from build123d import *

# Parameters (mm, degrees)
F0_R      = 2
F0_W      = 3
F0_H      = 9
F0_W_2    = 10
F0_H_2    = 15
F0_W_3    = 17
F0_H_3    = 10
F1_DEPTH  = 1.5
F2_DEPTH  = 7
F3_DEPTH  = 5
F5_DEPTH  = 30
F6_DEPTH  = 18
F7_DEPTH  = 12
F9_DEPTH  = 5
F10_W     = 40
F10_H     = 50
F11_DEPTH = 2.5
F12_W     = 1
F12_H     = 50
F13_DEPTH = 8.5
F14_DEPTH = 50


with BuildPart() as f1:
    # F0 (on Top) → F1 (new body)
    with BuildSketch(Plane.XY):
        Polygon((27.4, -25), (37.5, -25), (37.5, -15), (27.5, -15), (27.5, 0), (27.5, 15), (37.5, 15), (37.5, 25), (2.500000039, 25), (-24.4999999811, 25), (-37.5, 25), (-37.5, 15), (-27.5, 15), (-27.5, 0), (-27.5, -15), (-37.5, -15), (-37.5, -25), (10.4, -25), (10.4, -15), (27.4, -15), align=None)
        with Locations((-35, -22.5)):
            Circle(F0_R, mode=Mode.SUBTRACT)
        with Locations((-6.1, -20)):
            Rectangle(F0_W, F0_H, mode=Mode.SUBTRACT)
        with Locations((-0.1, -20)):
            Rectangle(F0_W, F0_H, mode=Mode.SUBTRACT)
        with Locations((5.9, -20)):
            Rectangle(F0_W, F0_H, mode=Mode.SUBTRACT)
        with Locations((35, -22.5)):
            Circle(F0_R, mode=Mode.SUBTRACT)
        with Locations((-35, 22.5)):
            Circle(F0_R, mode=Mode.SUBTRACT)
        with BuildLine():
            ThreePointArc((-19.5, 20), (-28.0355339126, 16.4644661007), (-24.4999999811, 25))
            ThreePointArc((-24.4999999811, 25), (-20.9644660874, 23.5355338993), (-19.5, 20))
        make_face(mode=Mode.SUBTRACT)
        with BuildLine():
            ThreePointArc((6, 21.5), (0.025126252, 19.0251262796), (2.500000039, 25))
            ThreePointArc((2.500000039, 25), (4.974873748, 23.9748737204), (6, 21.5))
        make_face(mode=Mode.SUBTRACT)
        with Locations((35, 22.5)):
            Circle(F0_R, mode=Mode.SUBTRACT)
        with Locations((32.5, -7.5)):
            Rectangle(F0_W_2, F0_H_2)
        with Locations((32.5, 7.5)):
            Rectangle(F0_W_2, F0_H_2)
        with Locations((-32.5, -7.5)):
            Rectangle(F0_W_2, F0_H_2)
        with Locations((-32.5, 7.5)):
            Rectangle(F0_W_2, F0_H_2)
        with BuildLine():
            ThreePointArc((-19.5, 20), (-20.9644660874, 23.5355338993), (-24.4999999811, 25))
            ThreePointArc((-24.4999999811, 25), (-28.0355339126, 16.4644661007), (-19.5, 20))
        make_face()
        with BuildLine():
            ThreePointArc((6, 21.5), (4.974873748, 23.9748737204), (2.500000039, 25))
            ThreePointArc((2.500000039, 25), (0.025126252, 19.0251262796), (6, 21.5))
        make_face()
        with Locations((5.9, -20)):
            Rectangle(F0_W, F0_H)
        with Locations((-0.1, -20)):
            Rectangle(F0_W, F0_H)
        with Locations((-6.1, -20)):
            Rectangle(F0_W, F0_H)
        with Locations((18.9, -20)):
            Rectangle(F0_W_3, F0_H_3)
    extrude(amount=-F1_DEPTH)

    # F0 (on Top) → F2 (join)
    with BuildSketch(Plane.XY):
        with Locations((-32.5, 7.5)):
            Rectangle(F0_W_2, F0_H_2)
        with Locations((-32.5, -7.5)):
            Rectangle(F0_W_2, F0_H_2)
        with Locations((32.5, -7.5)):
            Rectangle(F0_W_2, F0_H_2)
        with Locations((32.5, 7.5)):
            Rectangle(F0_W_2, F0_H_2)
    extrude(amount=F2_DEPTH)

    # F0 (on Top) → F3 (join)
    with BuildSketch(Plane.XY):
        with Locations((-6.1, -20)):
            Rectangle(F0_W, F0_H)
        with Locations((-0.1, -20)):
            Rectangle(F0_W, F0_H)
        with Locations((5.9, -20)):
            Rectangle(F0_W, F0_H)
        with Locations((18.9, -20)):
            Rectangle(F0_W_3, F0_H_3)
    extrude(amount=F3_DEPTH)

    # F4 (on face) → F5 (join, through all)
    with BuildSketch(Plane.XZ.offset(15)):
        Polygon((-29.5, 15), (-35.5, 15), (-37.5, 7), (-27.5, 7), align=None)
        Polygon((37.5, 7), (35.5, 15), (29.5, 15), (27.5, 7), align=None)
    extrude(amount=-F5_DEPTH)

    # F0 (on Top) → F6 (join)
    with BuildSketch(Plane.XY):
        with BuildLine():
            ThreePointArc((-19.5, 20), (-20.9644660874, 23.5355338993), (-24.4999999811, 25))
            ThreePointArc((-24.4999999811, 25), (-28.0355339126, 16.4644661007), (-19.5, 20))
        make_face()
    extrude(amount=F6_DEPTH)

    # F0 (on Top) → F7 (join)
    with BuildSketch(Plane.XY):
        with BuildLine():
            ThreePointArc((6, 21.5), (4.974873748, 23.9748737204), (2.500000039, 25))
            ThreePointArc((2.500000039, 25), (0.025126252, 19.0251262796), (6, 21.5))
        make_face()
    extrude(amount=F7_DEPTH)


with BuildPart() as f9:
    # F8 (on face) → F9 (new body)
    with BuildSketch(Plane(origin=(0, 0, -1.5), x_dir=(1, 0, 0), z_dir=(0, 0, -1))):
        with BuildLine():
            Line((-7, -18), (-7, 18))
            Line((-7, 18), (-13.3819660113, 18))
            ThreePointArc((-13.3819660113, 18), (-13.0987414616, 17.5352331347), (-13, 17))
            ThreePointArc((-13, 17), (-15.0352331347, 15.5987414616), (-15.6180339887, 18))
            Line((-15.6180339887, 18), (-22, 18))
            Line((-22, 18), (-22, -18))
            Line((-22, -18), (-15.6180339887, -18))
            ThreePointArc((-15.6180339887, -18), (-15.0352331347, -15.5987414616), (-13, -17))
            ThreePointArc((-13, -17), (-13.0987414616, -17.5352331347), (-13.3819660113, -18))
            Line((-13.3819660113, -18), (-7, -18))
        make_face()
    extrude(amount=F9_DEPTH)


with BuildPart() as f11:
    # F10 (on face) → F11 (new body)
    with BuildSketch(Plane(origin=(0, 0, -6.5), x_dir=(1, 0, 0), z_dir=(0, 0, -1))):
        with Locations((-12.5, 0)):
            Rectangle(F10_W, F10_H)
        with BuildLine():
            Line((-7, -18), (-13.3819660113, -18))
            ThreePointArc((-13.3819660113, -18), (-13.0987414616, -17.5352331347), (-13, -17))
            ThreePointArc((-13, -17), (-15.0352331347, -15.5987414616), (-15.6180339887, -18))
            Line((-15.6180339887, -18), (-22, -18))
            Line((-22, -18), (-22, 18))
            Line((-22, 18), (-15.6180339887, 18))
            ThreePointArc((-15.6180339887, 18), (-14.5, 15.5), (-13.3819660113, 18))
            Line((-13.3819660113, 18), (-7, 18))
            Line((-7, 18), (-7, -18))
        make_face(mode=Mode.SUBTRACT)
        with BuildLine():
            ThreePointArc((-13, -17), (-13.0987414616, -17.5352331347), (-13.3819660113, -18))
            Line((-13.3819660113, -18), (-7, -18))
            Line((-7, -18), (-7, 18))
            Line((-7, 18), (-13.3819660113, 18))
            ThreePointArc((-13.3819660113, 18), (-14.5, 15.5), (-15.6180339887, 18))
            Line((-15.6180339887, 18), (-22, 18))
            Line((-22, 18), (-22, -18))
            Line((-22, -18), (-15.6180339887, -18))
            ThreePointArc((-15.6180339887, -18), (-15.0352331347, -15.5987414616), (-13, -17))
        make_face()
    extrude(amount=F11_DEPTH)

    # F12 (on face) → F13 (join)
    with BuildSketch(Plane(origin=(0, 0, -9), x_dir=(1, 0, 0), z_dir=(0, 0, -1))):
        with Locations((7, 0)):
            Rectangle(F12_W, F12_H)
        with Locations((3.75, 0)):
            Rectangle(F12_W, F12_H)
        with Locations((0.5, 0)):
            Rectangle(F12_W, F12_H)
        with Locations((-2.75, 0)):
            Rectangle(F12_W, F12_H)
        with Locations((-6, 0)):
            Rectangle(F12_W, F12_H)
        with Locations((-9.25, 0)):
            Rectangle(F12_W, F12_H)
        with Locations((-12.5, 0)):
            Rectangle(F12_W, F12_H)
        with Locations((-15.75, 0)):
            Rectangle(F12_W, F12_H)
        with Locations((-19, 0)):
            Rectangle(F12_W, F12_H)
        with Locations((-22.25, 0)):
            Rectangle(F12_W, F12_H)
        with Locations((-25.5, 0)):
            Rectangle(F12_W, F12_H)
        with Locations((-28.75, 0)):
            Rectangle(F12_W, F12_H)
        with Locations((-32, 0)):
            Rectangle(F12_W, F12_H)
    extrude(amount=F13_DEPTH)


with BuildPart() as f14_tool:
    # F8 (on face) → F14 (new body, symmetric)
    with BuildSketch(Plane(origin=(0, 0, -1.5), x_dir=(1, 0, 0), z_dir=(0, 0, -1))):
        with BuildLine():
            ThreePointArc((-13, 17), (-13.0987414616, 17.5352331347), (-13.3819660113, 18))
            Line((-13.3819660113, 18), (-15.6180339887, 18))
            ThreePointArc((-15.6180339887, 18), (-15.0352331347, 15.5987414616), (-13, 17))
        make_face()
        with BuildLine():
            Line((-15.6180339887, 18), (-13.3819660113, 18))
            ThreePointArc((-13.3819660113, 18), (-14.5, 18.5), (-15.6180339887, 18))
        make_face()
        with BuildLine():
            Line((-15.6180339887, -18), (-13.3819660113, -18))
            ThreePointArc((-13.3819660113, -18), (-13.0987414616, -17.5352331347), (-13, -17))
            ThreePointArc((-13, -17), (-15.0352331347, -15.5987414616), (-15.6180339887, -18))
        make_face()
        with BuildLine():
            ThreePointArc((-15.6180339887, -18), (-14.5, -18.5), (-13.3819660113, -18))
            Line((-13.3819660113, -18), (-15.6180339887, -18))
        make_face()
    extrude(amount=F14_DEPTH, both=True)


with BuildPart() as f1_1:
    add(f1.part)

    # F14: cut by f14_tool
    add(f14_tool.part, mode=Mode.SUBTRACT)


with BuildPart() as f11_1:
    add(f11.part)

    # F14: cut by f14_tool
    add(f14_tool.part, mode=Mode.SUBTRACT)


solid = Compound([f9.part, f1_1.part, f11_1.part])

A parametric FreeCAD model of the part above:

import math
import FreeCAD as App
import Part
import Sketcher

V = App.Vector
Q = App.Units.Quantity

doc = App.newDocument("Part")
body = doc.addObject("PartDesign::Body", "Body")

# Sketch on XY plane
sketch1 = body.newObject("Sketcher::SketchObject", "Sketch")
sketch1.AttachmentSupport = (doc.getObject("XY_Plane"), [""])
sketch1.MapMode = "FlatFace"
sketch1.addGeometry([
    Part.LineSegment(V(37.5, 25, 0), V(-37.5, 25, 0)),  # 0
    Part.LineSegment(V(-37.5, 25, 0), V(-37.5, -25, 0)),  # 1
    Part.LineSegment(V(-37.5, -25, 0), V(37.5, -25, 0)),  # 2
    Part.LineSegment(V(37.5, -25, 0), V(37.5, 25, 0)),  # 3
    Part.Circle(V(-35, -22.5, 0), V(0, 0, 1), 2),  # 4
    Part.Circle(V(35, -22.5, 0), V(0, 0, 1), 2),  # 5
    Part.Circle(V(-35, 22.5, 0), V(0, 0, 1), 2),  # 6
    Part.Circle(V(35, 22.5, 0), V(0, 0, 1), 2),  # 7
], False)
sketch1.addConstraint([
    Sketcher.Constraint("Coincident", 0, 2, 1, 1),
    Sketcher.Constraint("Coincident", 1, 2, 2, 1),
    Sketcher.Constraint("Coincident", 2, 2, 3, 1),
    Sketcher.Constraint("Coincident", 3, 2, 0, 1),
    Sketcher.Constraint("Horizontal", 0),
    Sketcher.Constraint("Vertical", 1),
    Sketcher.Constraint("Horizontal", 2),
    Sketcher.Constraint("Vertical", 3),
    Sketcher.Constraint("Equal", 4, 5),
    Sketcher.Constraint("Equal", 5, 6),
    Sketcher.Constraint("Equal", 6, 7),
    Sketcher.Constraint("Symmetric", 5, 3, 6, 3, -1, 1),
    Sketcher.Constraint("Symmetric", 4, 3, 7, 3, -1, 1),
    Sketcher.Constraint("Symmetric", 0, 2, 2, 2, -1, 1),
    Sketcher.Constraint("Symmetric", 4, 3, 5, 3, -2),
    Sketcher.Constraint("Diameter", 4, Q("4 mm")),
    Sketcher.Constraint("DistanceX", 0, 2, 0, 1, Q("75 mm")),
    Sketcher.Constraint("DistanceY", 1, 2, 1, 1, Q("50 mm")),
    Sketcher.Constraint("DistanceX", 4, 3, -1, 1, Q("35 mm")),
    Sketcher.Constraint("DistanceY", 4, 3, 6, 3, Q("45 mm")),
])
pad1 = body.newObject("PartDesign::Pad", "Pad")
pad1.Profile = sketch1
pad1.Length = 1.5
pad1.Reversed = True

# Sketch on XY plane
sketch2 = body.newObject("Sketcher::SketchObject", "Sketch001")
sketch2.AttachmentSupport = (doc.getObject("XY_Plane"), [""])
sketch2.MapMode = "FlatFace"
sketch2.addGeometry([
    Part.LineSegment(V(-38, 15, 0), V(-38, -15, 0)),  # 0
    Part.LineSegment(V(-38, -15, 0), V(-28, -15, 0)),  # 1
    Part.LineSegment(V(-28, -15, 0), V(-28, 15, 0)),  # 2
    Part.LineSegment(V(-28, 15, 0), V(-38, 15, 0)),  # 3
    Part.LineSegment(V(28, -15, 0), V(38, -15, 0)),  # 4
    Part.LineSegment(V(38, -15, 0), V(38, 15, 0)),  # 5
    Part.LineSegment(V(38, 15, 0), V(28, 15, 0)),  # 6
    Part.LineSegment(V(28, 15, 0), V(28, -15, 0)),  # 7
], False)
sketch2.addConstraint([
    Sketcher.Constraint("Coincident", 0, 2, 1, 1),
    Sketcher.Constraint("Coincident", 1, 2, 2, 1),
    Sketcher.Constraint("Coincident", 2, 2, 3, 1),
    Sketcher.Constraint("Coincident", 3, 2, 0, 1),
    Sketcher.Constraint("Coincident", 4, 2, 5, 1),
    Sketcher.Constraint("Coincident", 5, 2, 6, 1),
    Sketcher.Constraint("Coincident", 6, 2, 7, 1),
    Sketcher.Constraint("Coincident", 7, 2, 4, 1),
    Sketcher.Constraint("Vertical", 0),
    Sketcher.Constraint("Horizontal", 1),
    Sketcher.Constraint("Vertical", 2),
    Sketcher.Constraint("Horizontal", 3),
    Sketcher.Constraint("Horizontal", 4),
    Sketcher.Constraint("Vertical", 5),
    Sketcher.Constraint("Horizontal", 6),
    Sketcher.Constraint("Vertical", 7),
    Sketcher.Constraint("Symmetric", 3, 2, 4, 2, -1, 1),
    Sketcher.Constraint("Symmetric", 1, 2, 6, 2, -1, 1),
    Sketcher.Constraint("Horizontal", 1, 2, 4, 2),
    Sketcher.Constraint("DistanceX", 1, 1, 1, 2, Q("10 mm")),
    Sketcher.Constraint("DistanceY", 0, 2, 0, 1, Q("30 mm")),
    Sketcher.Constraint("DistanceX", 1, 2, 4, 2, Q("65 mm")),
])
pad2 = body.newObject("PartDesign::Pad", "Pad001")
pad2.Profile = sketch2
pad2.Length = 7

# Sketch on XY plane
sketch3 = body.newObject("Sketcher::SketchObject", "Sketch002")
sketch3.AttachmentSupport = (doc.getObject("XY_Plane"), [""])
sketch3.MapMode = "FlatFace"
sketch3.addGeometry([
    Part.LineSegment(V(-7.6, -15.5, 0), V(-7.6, -24.5, 0)),  # 0
    Part.LineSegment(V(-7.6, -24.5, 0), V(-4.6, -24.5, 0)),  # 1
    Part.LineSegment(V(-4.6, -24.5, 0), V(-4.6, -15.5, 0)),  # 2
    Part.LineSegment(V(-4.6, -15.5, 0), V(-7.6, -15.5, 0)),  # 3
    Part.LineSegment(V(-1.6, -15.5, 0), V(-1.6, -24.5, 0)),  # 4
    Part.LineSegment(V(-1.6, -24.5, 0), V(1.4, -24.5, 0)),  # 5
    Part.LineSegment(V(1.4, -24.5, 0), V(1.4, -15.5, 0)),  # 6
    Part.LineSegment(V(1.4, -15.5, 0), V(-1.6, -15.5, 0)),  # 7
    Part.LineSegment(V(4.4, -15.5, 0), V(4.4, -24.5, 0)),  # 8
    Part.LineSegment(V(4.4, -24.5, 0), V(7.4, -24.5, 0)),  # 9
    Part.LineSegment(V(7.4, -24.5, 0), V(7.4, -15.5, 0)),  # 10
    Part.LineSegment(V(7.4, -15.5, 0), V(4.4, -15.5, 0)),  # 11
    Part.LineSegment(V(10.4, -15, 0), V(10.4, -25, 0)),  # 12
    Part.LineSegment(V(10.4, -25, 0), V(27.4, -25, 0)),  # 13
    Part.LineSegment(V(27.4, -25, 0), V(27.4, -15, 0)),  # 14
    Part.LineSegment(V(27.4, -15, 0), V(10.4, -15, 0)),  # 15
], False)
sketch3.addConstraint([
    Sketcher.Constraint("Coincident", 0, 2, 1, 1),
    Sketcher.Constraint("Coincident", 1, 2, 2, 1),
    Sketcher.Constraint("Coincident", 2, 2, 3, 1),
    Sketcher.Constraint("Coincident", 3, 2, 0, 1),
    Sketcher.Constraint("Coincident", 4, 2, 5, 1),
    Sketcher.Constraint("Coincident", 5, 2, 6, 1),
    Sketcher.Constraint("Coincident", 6, 2, 7, 1),
    Sketcher.Constraint("Coincident", 7, 2, 4, 1),
    Sketcher.Constraint("Coincident", 8, 2, 9, 1),
    Sketcher.Constraint("Coincident", 9, 2, 10, 1),
    Sketcher.Constraint("Coincident", 10, 2, 11, 1),
    Sketcher.Constraint("Coincident", 11, 2, 8, 1),
    Sketcher.Constraint("Coincident", 12, 2, 13, 1),
    Sketcher.Constraint("Coincident", 13, 2, 14, 1),
    Sketcher.Constraint("Coincident", 14, 2, 15, 1),
    Sketcher.Constraint("Coincident", 15, 2, 12, 1),
    Sketcher.Constraint("Vertical", 0),
    Sketcher.Constraint("Horizontal", 1),
    Sketcher.Constraint("Vertical", 2),
    Sketcher.Constraint("Horizontal", 3),
    Sketcher.Constraint("Vertical", 4),
    Sketcher.Constraint("Horizontal", 5),
    Sketcher.Constraint("Vertical", 6),
    Sketcher.Constraint("Horizontal", 7),
    Sketcher.Constraint("Vertical", 8),
    Sketcher.Constraint("Horizontal", 9),
    Sketcher.Constraint("Vertical", 10),
    Sketcher.Constraint("Horizontal", 11),
    Sketcher.Constraint("Vertical", 12),
    Sketcher.Constraint("Horizontal", 13),
    Sketcher.Constraint("Vertical", 14),
    Sketcher.Constraint("Horizontal", 15),
    Sketcher.Constraint("Horizontal", 1, 2, 4, 2),
    Sketcher.Constraint("Horizontal", 3, 2, 6, 2),
    Sketcher.Constraint("Horizontal", 5, 2, 8, 2),
    Sketcher.Constraint("Horizontal", 7, 2, 10, 2),
    Sketcher.Constraint("Equal", 3, 5),
    Sketcher.Constraint("Equal", 7, 9),
    Sketcher.Constraint("DistanceX", 1, 1, 1, 2, Q("3 mm")),
    Sketcher.Constraint("DistanceX", 13, 1, 13, 2, Q("17 mm")),
    Sketcher.Constraint("DistanceY", 0, 2, 0, 1, Q("9 mm")),
    Sketcher.Constraint("DistanceY", 12, 2, 12, 1, Q("10 mm")),
    Sketcher.Constraint("DistanceY", 12, 2, -1, 1, Q("25 mm")),
    Sketcher.Constraint("DistanceX", 1, 2, 4, 2, Q("3 mm")),
    Sketcher.Constraint("DistanceX", 5, 2, 8, 2, Q("3 mm")),
    Sketcher.Constraint("DistanceX", 9, 2, 12, 2, Q("3 mm")),
    Sketcher.Constraint("DistanceX", 0, 2, -1, 1, Q("7.6 mm")),
    Sketcher.Constraint("DistanceY", 0, 2, -1, 1, Q("24.5 mm")),
])
pad3 = body.newObject("PartDesign::Pad", "Pad002")
pad3.Profile = sketch3
pad3.Length = 5

# Sketch on XZ plane
sketch4 = body.newObject("Sketcher::SketchObject", "Sketch003")
sketch4.AttachmentSupport = (doc.getObject("XZ_Plane"), [""])
sketch4.MapMode = "FlatFace"
sketch4.AttachmentOffset = App.Placement(V(0, 0, 15), App.Rotation())
sketch4.addGeometry([
    Part.LineSegment(V(-30, 15, 0), V(-36, 15, 0)),  # 0
    Part.LineSegment(V(-36, 15, 0), V(-38, 7, 0)),  # 1
    Part.LineSegment(V(-38, 7, 0), V(-28, 7, 0)),  # 2
    Part.LineSegment(V(-28, 7, 0), V(-30, 15, 0)),  # 3
    Part.LineSegment(V(38, 7, 0), V(36, 15, 0)),  # 4
    Part.LineSegment(V(36, 15, 0), V(30, 15, 0)),  # 5
    Part.LineSegment(V(30, 15, 0), V(28, 7, 0)),  # 6
    Part.LineSegment(V(28, 7, 0), V(38, 7, 0)),  # 7
], False)
sketch4.addConstraint([
    Sketcher.Constraint("Coincident", 0, 2, 1, 1),
    Sketcher.Constraint("Coincident", 1, 2, 2, 1),
    Sketcher.Constraint("Coincident", 2, 2, 3, 1),
    Sketcher.Constraint("Coincident", 3, 2, 0, 1),
    Sketcher.Constraint("Coincident", 4, 2, 5, 1),
    Sketcher.Constraint("Coincident", 5, 2, 6, 1),
    Sketcher.Constraint("Coincident", 6, 2, 7, 1),
    Sketcher.Constraint("Coincident", 7, 2, 4, 1),
    Sketcher.Constraint("Horizontal", 0),
    Sketcher.Constraint("Horizontal", 2),
    Sketcher.Constraint("Horizontal", 5),
    Sketcher.Constraint("Horizontal", 7),
    Sketcher.Constraint("Symmetric", 0, 2, 4, 2, -2),
    Sketcher.Constraint("Symmetric", 2, 2, 6, 2, -2),
    Sketcher.Constraint("Parallel", 3, 4),
    Sketcher.Constraint("Parallel", 1, 6),
    Sketcher.Constraint("Equal", 0, 5),
    Sketcher.Constraint("DistanceX", 0, 2, 0, 1, Q("6 mm")),
    Sketcher.Constraint("DistanceX", 2, 1, 2, 2, Q("10 mm")),
    Sketcher.Constraint("DistanceY", -1, 1, 0, 2, Q("15 mm")),
    Sketcher.Constraint("DistanceY", -1, 1, 1, 2, Q("7 mm")),
    Sketcher.Constraint("DistanceX", 2, 2, 4, 2, Q("63 mm")),
])
pad4 = body.newObject("PartDesign::Pad", "Pad003")
pad4.Profile = sketch4
pad4.Length = 30
pad4.Reversed = True

# Sketch on XY plane
sketch5 = body.newObject("Sketcher::SketchObject", "Sketch004")
sketch5.AttachmentSupport = (doc.getObject("XY_Plane"), [""])
sketch5.MapMode = "FlatFace"
sketch5.addGeometry([
    Part.ArcOfCircle(Part.Circle(V(-24, 20, 0), V(0, 0, 1), 5), math.radians(0), math.radians(90)),
    Part.ArcOfCircle(Part.Circle(V(-24, 20, 0), V(0, 0, 1), 5), math.radians(90), math.radians(360)),
], False)
sketch5.addConstraint([
    Sketcher.Constraint("Tangent", 0, 1, 1, 2),
    Sketcher.Constraint("Coincident", 1, 1, 0, 2),
    Sketcher.Constraint("Horizontal", 1, 3, 0, 1),
    Sketcher.Constraint("Vertical", 0, 3, 1, 1),
    Sketcher.Constraint("Radius", 0, Q("5 mm")),
    Sketcher.Constraint("DistanceY", -1, 1, 0, 3, Q("20 mm")),
    Sketcher.Constraint("DistanceX", 0, 3, -1, 1, Q("24.5 mm")),
])
pad5 = body.newObject("PartDesign::Pad", "Pad004")
pad5.Profile = sketch5
pad5.Length = 18

# Sketch on XY plane
sketch6 = body.newObject("Sketcher::SketchObject", "Sketch005")
sketch6.AttachmentSupport = (doc.getObject("XY_Plane"), [""])
sketch6.MapMode = "FlatFace"
sketch6.addGeometry([
    Part.ArcOfCircle(Part.Circle(V(2.5, 21.5, 0), V(0, 0, 1), 3.5), math.radians(0), math.radians(90)),
    Part.ArcOfCircle(Part.Circle(V(2.5, 21.5, 0), V(0, 0, 1), 3.5), math.radians(90), math.radians(360)),
], False)
sketch6.addConstraint([
    Sketcher.Constraint("Tangent", 0, 1, 1, 2),
    Sketcher.Constraint("Coincident", 1, 1, 0, 2),
    Sketcher.Constraint("Horizontal", 1, 3, 0, 1),
    Sketcher.Constraint("Vertical", 0, 3, 1, 1),
    Sketcher.Constraint("Radius", 0, Q("3.5 mm")),
    Sketcher.Constraint("DistanceX", -1, 1, 0, 1, Q("6 mm")),
    Sketcher.Constraint("DistanceY", -1, 1, 1, 1, Q("25 mm")),
])
pad6 = body.newObject("PartDesign::Pad", "Pad005")
pad6.Profile = sketch6
pad6.Length = 12
body2 = doc.addObject("PartDesign::Body", "Body001")

# Sketch on XY plane
sketch7 = body2.newObject("Sketcher::SketchObject", "Sketch006")
sketch7.AttachmentSupport = (doc.getObject("XY_Plane001"), [""])
sketch7.MapMode = "FlatFace"
sketch7.AttachmentOffset = App.Placement(V(0, 0, -1.5), App.Rotation())
sketch7.addGeometry([
    Part.LineSegment(V(-7, 18, 0), V(-7, -18, 0)),  # 0
    Part.LineSegment(V(-7, -18, 0), V(-13.4, -18, 0)),  # 1
    Part.ArcOfCircle(Part.Circle(V(-14.5, -17, 0), V(0, 0, 1), 1.5), math.radians(-42), math.radians(0)),  # 2
    Part.ArcOfCircle(Part.Circle(V(-14.5, -17, 0), V(0, 0, 1), 1.5), math.radians(0), math.radians(222)),  # 3
    Part.LineSegment(V(-15.6, -18, 0), V(-22, -18, 0)),  # 4
    Part.LineSegment(V(-22, -18, 0), V(-22, 18, 0)),  # 5
    Part.LineSegment(V(-22, 18, 0), V(-15.6, 18, 0)),  # 6
    Part.ArcOfCircle(Part.Circle(V(-14.5, 17, 0), V(0, 0, 1), 1.5), math.radians(138), math.radians(360)),  # 7
    Part.ArcOfCircle(Part.Circle(V(-14.5, 17, 0), V(0, 0, 1), 1.5), math.radians(0), math.radians(42)),  # 8
    Part.LineSegment(V(-13.4, 18, 0), V(-7, 18, 0)),  # 9
], False)
sketch7.addConstraint([
    Sketcher.Constraint("Coincident", 0, 2, 1, 1),
    Sketcher.Constraint("Coincident", 1, 2, 2, 1),
    Sketcher.Constraint("Tangent", 2, 2, 3, 1),
    Sketcher.Constraint("Coincident", 3, 2, 4, 1),
    Sketcher.Constraint("Coincident", 4, 2, 5, 1),
    Sketcher.Constraint("Coincident", 5, 2, 6, 1),
    Sketcher.Constraint("Coincident", 6, 2, 7, 1),
    Sketcher.Constraint("Tangent", 7, 2, 8, 1),
    Sketcher.Constraint("Coincident", 8, 2, 9, 1),
    Sketcher.Constraint("Coincident", 9, 2, 0, 1),
    Sketcher.Constraint("Vertical", 0),
    Sketcher.Constraint("Horizontal", 1),
    Sketcher.Constraint("Horizontal", 4),
    Sketcher.Constraint("Vertical", 5),
    Sketcher.Constraint("Horizontal", 6),
    Sketcher.Constraint("Horizontal", 9),
    Sketcher.Constraint("Equal", 2, 3),
    Sketcher.Constraint("Equal", 3, 7),
    Sketcher.Constraint("Equal", 7, 8),
    Sketcher.Constraint("Symmetric", 2, 3, 7, 3, -1),
    Sketcher.Constraint("Horizontal", 3, 3, 2, 2),
    Sketcher.Constraint("Horizontal", 1, 2, 3, 2),
    Sketcher.Constraint("Horizontal", 8, 3, 7, 2),
    Sketcher.Constraint("Horizontal", 6, 2, 8, 2),
    Sketcher.Constraint("Vertical", 3, 2, 6, 2),
    Sketcher.Constraint("Equal", 1, 4),
    Sketcher.Constraint("Radius", 2, Q("1.5 mm")),
    Sketcher.Constraint("DistanceY", 0, 2, 0, 1, Q("36 mm")),
    Sketcher.Constraint("DistanceY", 2, 3, -1, 1, Q("17 mm")),
    Sketcher.Constraint("DistanceX", 0, 2, -1, 1, Q("7 mm")),
    Sketcher.Constraint("DistanceX", 2, 2, -1, 1, Q("13 mm")),
])
pad7 = body2.newObject("PartDesign::Pad", "Pad006")
pad7.Profile = sketch7
pad7.Length = 5
pad7.Reversed = True
body3 = doc.addObject("PartDesign::Body", "Body002")

# Sketch on XY plane
sketch8 = body3.newObject("Sketcher::SketchObject", "Sketch007")
sketch8.AttachmentSupport = (doc.getObject("XY_Plane002"), [""])
sketch8.MapMode = "FlatFace"
sketch8.AttachmentOffset = App.Placement(V(0, 0, -6.5), App.Rotation())
sketch8.addGeometry([
    Part.LineSegment(V(-32, -25, 0), V(-32, 25, 0)),
    Part.LineSegment(V(-32, 25, 0), V(8, 25, 0)),
    Part.LineSegment(V(8, 25, 0), V(8, -25, 0)),
    Part.LineSegment(V(8, -25, 0), V(-32, -25, 0)),
], False)
sketch8.addConstraint([
    Sketcher.Constraint("Coincident", 0, 2, 1, 1),
    Sketcher.Constraint("Coincident", 1, 2, 2, 1),
    Sketcher.Constraint("Coincident", 2, 2, 3, 1),
    Sketcher.Constraint("Coincident", 3, 2, 0, 1),
    Sketcher.Constraint("Vertical", 0),
    Sketcher.Constraint("Horizontal", 1),
    Sketcher.Constraint("Vertical", 2),
    Sketcher.Constraint("Horizontal", 3),
    Sketcher.Constraint("DistanceX", 1, 1, 1, 2, Q("40 mm")),
    Sketcher.Constraint("DistanceY", 0, 1, 0, 2, Q("50 mm")),
    Sketcher.Constraint("DistanceY", -1, 1, 0, 2, Q("25 mm")),
    Sketcher.Constraint("DistanceX", 0, 2, -1, 1, Q("32.5 mm")),
])
pad8 = body3.newObject("PartDesign::Pad", "Pad007")
pad8.Profile = sketch8
pad8.Length = 2.5
pad8.Reversed = True

# Sketch on XY plane
sketch9 = body3.newObject("Sketcher::SketchObject", "Sketch008")
sketch9.AttachmentSupport = (doc.getObject("XY_Plane002"), [""])
sketch9.MapMode = "FlatFace"
sketch9.AttachmentOffset = App.Placement(V(0, 0, -9), App.Rotation())
sketch9.addGeometry([
    Part.LineSegment(V(6.5, -25, 0), V(6.5, 25, 0)),  # 0
    Part.LineSegment(V(6.5, 25, 0), V(7.5, 25, 0)),  # 1
    Part.LineSegment(V(7.5, 25, 0), V(7.5, -25, 0)),  # 2
    Part.LineSegment(V(7.5, -25, 0), V(6.5, -25, 0)),  # 3
    Part.LineSegment(V(3.2, -25, 0), V(3.2, 25, 0)),  # 4
    Part.LineSegment(V(3.2, 25, 0), V(4.2, 25, 0)),  # 5
    Part.LineSegment(V(4.2, 25, 0), V(4.2, -25, 0)),  # 6
    Part.LineSegment(V(4.2, -25, 0), V(3.2, -25, 0)),  # 7
    Part.LineSegment(V(0, -25, 0), V(0, 25, 0)),  # 8
    Part.LineSegment(V(0, 25, 0), V(1, 25, 0)),  # 9
    Part.LineSegment(V(1, 25, 0), V(1, -25, 0)),  # 10
    Part.LineSegment(V(1, -25, 0), V(0, -25, 0)),  # 11
    Part.LineSegment(V(-3.2, -25, 0), V(-3.2, 25, 0)),  # 12
    Part.LineSegment(V(-3.2, 25, 0), V(-2.2, 25, 0)),  # 13
    Part.LineSegment(V(-2.2, 25, 0), V(-2.2, -25, 0)),  # 14
    Part.LineSegment(V(-2.2, -25, 0), V(-3.2, -25, 0)),  # 15
    Part.LineSegment(V(-6.5, -25, 0), V(-6.5, 25, 0)),  # 16
    Part.LineSegment(V(-6.5, 25, 0), V(-5.5, 25, 0)),  # 17
    Part.LineSegment(V(-5.5, 25, 0), V(-5.5, -25, 0)),  # 18
    Part.LineSegment(V(-5.5, -25, 0), V(-6.5, -25, 0)),  # 19
    Part.LineSegment(V(-9.8, -25, 0), V(-9.8, 25, 0)),  # 20
    Part.LineSegment(V(-9.8, 25, 0), V(-8.8, 25, 0)),  # 21
    Part.LineSegment(V(-8.8, 25, 0), V(-8.8, -25, 0)),  # 22
    Part.LineSegment(V(-8.8, -25, 0), V(-9.8, -25, 0)),  # 23
    Part.LineSegment(V(-13, -25, 0), V(-13, 25, 0)),  # 24
    Part.LineSegment(V(-13, 25, 0), V(-12, 25, 0)),  # 25
    Part.LineSegment(V(-12, 25, 0), V(-12, -25, 0)),  # 26
    Part.LineSegment(V(-12, -25, 0), V(-13, -25, 0)),  # 27
    Part.LineSegment(V(-16.2, -25, 0), V(-16.2, 25, 0)),  # 28
    Part.LineSegment(V(-16.2, 25, 0), V(-15.2, 25, 0)),  # 29
    Part.LineSegment(V(-15.2, 25, 0), V(-15.2, -25, 0)),  # 30
    Part.LineSegment(V(-15.2, -25, 0), V(-16.2, -25, 0)),  # 31
    Part.LineSegment(V(-19.5, -25, 0), V(-19.5, 25, 0)),  # 32
    Part.LineSegment(V(-19.5, 25, 0), V(-18.5, 25, 0)),  # 33
    Part.LineSegment(V(-18.5, 25, 0), V(-18.5, -25, 0)),  # 34
    Part.LineSegment(V(-18.5, -25, 0), V(-19.5, -25, 0)),  # 35
    Part.LineSegment(V(-22.8, -25, 0), V(-22.8, 25, 0)),  # 36
    Part.LineSegment(V(-22.8, 25, 0), V(-21.8, 25, 0)),  # 37
    Part.LineSegment(V(-21.8, 25, 0), V(-21.8, -25, 0)),  # 38
    Part.LineSegment(V(-21.8, -25, 0), V(-22.8, -25, 0)),  # 39
    Part.LineSegment(V(-26, -25, 0), V(-26, 25, 0)),  # 40
    Part.LineSegment(V(-26, 25, 0), V(-25, 25, 0)),  # 41
    Part.LineSegment(V(-25, 25, 0), V(-25, -25, 0)),  # 42
    Part.LineSegment(V(-25, -25, 0), V(-26, -25, 0)),  # 43
    Part.LineSegment(V(-29.2, -25, 0), V(-29.2, 25, 0)),  # 44
    Part.LineSegment(V(-29.2, 25, 0), V(-28.2, 25, 0)),  # 45
    Part.LineSegment(V(-28.2, 25, 0), V(-28.2, -25, 0)),  # 46
    Part.LineSegment(V(-28.2, -25, 0), V(-29.2, -25, 0)),  # 47
    Part.LineSegment(V(-32.5, -25, 0), V(-32.5, 25, 0)),  # 48
    Part.LineSegment(V(-32.5, 25, 0), V(-31.5, 25, 0)),  # 49
    Part.LineSegment(V(-31.5, 25, 0), V(-31.5, -25, 0)),  # 50
    Part.LineSegment(V(-31.5, -25, 0), V(-32.5, -25, 0)),  # 51
], False)
sketch9.addConstraint([
    Sketcher.Constraint("Coincident", 0, 2, 1, 1),
    Sketcher.Constraint("Coincident", 1, 2, 2, 1),
    Sketcher.Constraint("Coincident", 2, 2, 3, 1),
    Sketcher.Constraint("Coincident", 3, 2, 0, 1),
    Sketcher.Constraint("Coincident", 4, 2, 5, 1),
    Sketcher.Constraint("Coincident", 5, 2, 6, 1),
    Sketcher.Constraint("Coincident", 6, 2, 7, 1),
    Sketcher.Constraint("Coincident", 7, 2, 4, 1),
    Sketcher.Constraint("Coincident", 8, 2, 9, 1),
    Sketcher.Constraint("Coincident", 9, 2, 10, 1),
    Sketcher.Constraint("Coincident", 10, 2, 11, 1),
    Sketcher.Constraint("Coincident", 11, 2, 8, 1),
    Sketcher.Constraint("Coincident", 12, 2, 13, 1),
    Sketcher.Constraint("Coincident", 13, 2, 14, 1),
    Sketcher.Constraint("Coincident", 14, 2, 15, 1),
    Sketcher.Constraint("Coincident", 15, 2, 12, 1),
    Sketcher.Constraint("Coincident", 16, 2, 17, 1),
    Sketcher.Constraint("Coincident", 17, 2, 18, 1),
    Sketcher.Constraint("Coincident", 18, 2, 19, 1),
    Sketcher.Constraint("Coincident", 19, 2, 16, 1),
    Sketcher.Constraint("Coincident", 20, 2, 21, 1),
    Sketcher.Constraint("Coincident", 21, 2, 22, 1),
    Sketcher.Constraint("Coincident", 22, 2, 23, 1),
    Sketcher.Constraint("Coincident", 23, 2, 20, 1),
    Sketcher.Constraint("Coincident", 24, 2, 25, 1),
    Sketcher.Constraint("Coincident", 25, 2, 26, 1),
    Sketcher.Constraint("Coincident", 26, 2, 27, 1),
    Sketcher.Constraint("Coincident", 27, 2, 24, 1),
    Sketcher.Constraint("Coincident", 28, 2, 29, 1),
    Sketcher.Constraint("Coincident", 29, 2, 30, 1),
    Sketcher.Constraint("Coincident", 30, 2, 31, 1),
    Sketcher.Constraint("Coincident", 31, 2, 28, 1),
    Sketcher.Constraint("Coincident", 32, 2, 33, 1),
    Sketcher.Constraint("Coincident", 33, 2, 34, 1),
    Sketcher.Constraint("Coincident", 34, 2, 35, 1),
    Sketcher.Constraint("Coincident", 35, 2, 32, 1),
    Sketcher.Constraint("Coincident", 36, 2, 37, 1),
    Sketcher.Constraint("Coincident", 37, 2, 38, 1),
    Sketcher.Constraint("Coincident", 38, 2, 39, 1),
    Sketcher.Constraint("Coincident", 39, 2, 36, 1),
    Sketcher.Constraint("Coincident", 40, 2, 41, 1),
    Sketcher.Constraint("Coincident", 41, 2, 42, 1),
    Sketcher.Constraint("Coincident", 42, 2, 43, 1),
    Sketcher.Constraint("Coincident", 43, 2, 40, 1),
    Sketcher.Constraint("Coincident", 44, 2, 45, 1),
    Sketcher.Constraint("Coincident", 45, 2, 46, 1),
    Sketcher.Constraint("Coincident", 46, 2, 47, 1),
    Sketcher.Constraint("Coincident", 47, 2, 44, 1),
    Sketcher.Constraint("Coincident", 48, 2, 49, 1),
    Sketcher.Constraint("Coincident", 49, 2, 50, 1),
    Sketcher.Constraint("Coincident", 50, 2, 51, 1),
    Sketcher.Constraint("Coincident", 51, 2, 48, 1),
    Sketcher.Constraint("Vertical", 0),
    Sketcher.Constraint("Horizontal", 1),
    Sketcher.Constraint("Vertical", 2),
    Sketcher.Constraint("Horizontal", 3),
    Sketcher.Constraint("Vertical", 4),
    Sketcher.Constraint("Horizontal", 5),
    Sketcher.Constraint("Vertical", 6),
    Sketcher.Constraint("Horizontal", 7),
    Sketcher.Constraint("Vertical", 8),
    Sketcher.Constraint("Horizontal", 9),
    Sketcher.Constraint("Vertical", 10),
    Sketcher.Constraint("Horizontal", 11),
    Sketcher.Constraint("Vertical", 12),
    Sketcher.Constraint("Horizontal", 13),
    Sketcher.Constraint("Vertical", 14),
    Sketcher.Constraint("Horizontal", 15),
    Sketcher.Constraint("Vertical", 16),
    Sketcher.Constraint("Horizontal", 17),
    Sketcher.Constraint("Vertical", 18),
    Sketcher.Constraint("Horizontal", 19),
    Sketcher.Constraint("Vertical", 20),
    Sketcher.Constraint("Horizontal", 21),
    Sketcher.Constraint("Vertical", 22),
    Sketcher.Constraint("Horizontal", 23),
    Sketcher.Constraint("Vertical", 24),
    Sketcher.Constraint("Horizontal", 25),
    Sketcher.Constraint("Vertical", 26),
    Sketcher.Constraint("Horizontal", 27),
    Sketcher.Constraint("Vertical", 28),
    Sketcher.Constraint("Horizontal", 29),
    Sketcher.Constraint("Vertical", 30),
    Sketcher.Constraint("Horizontal", 31),
    Sketcher.Constraint("Vertical", 32),
    Sketcher.Constraint("Horizontal", 33),
    Sketcher.Constraint("Vertical", 34),
    Sketcher.Constraint("Horizontal", 35),
    Sketcher.Constraint("Vertical", 36),
    Sketcher.Constraint("Horizontal", 37),
    Sketcher.Constraint("Vertical", 38),
    Sketcher.Constraint("Horizontal", 39),
    Sketcher.Constraint("Vertical", 40),
    Sketcher.Constraint("Horizontal", 41),
    Sketcher.Constraint("Vertical", 42),
    Sketcher.Constraint("Horizontal", 43),
    Sketcher.Constraint("Vertical", 44),
    Sketcher.Constraint("Horizontal", 45),
    Sketcher.Constraint("Vertical", 46),
    Sketcher.Constraint("Horizontal", 47),
    Sketcher.Constraint("Vertical", 48),
    Sketcher.Constraint("Horizontal", 49),
    Sketcher.Constraint("Vertical", 50),
    Sketcher.Constraint("Horizontal", 51),
    Sketcher.Constraint("Symmetric", 8, 2, 11, 2, -1, 1),
    Sketcher.Constraint("Symmetric", 7, 2, 12, 2, -1, 1),
    Sketcher.Constraint("Symmetric", 3, 2, 16, 2, -1, 1),
    Sketcher.Constraint("Horizontal", 1, 2, 4, 2),
    Sketcher.Constraint("Horizontal", 3, 2, 6, 2),
    Sketcher.Constraint("Horizontal", 5, 2, 8, 2),
    Sketcher.Constraint("Horizontal", 7, 2, 10, 2),
    Sketcher.Constraint("Horizontal", 11, 2, 14, 2),
    Sketcher.Constraint("Horizontal", 15, 2, 18, 2),
    Sketcher.Constraint("Horizontal", 17, 2, 20, 2),
    Sketcher.Constraint("Horizontal", 19, 2, 22, 2),
    Sketcher.Constraint("Horizontal", 21, 2, 24, 2),
    Sketcher.Constraint("Horizontal", 23, 2, 26, 2),
    Sketcher.Constraint("Horizontal", 25, 2, 28, 2),
    Sketcher.Constraint("Horizontal", 27, 2, 30, 2),
    Sketcher.Constraint("Horizontal", 29, 2, 32, 2),
    Sketcher.Constraint("Horizontal", 31, 2, 34, 2),
    Sketcher.Constraint("Horizontal", 33, 2, 36, 2),
    Sketcher.Constraint("Horizontal", 35, 2, 38, 2),
    Sketcher.Constraint("Horizontal", 37, 2, 40, 2),
    Sketcher.Constraint("Horizontal", 39, 2, 42, 2),
    Sketcher.Constraint("Horizontal", 41, 2, 44, 2),
    Sketcher.Constraint("Horizontal", 43, 2, 46, 2),
    Sketcher.Constraint("Horizontal", 45, 2, 48, 2),
    Sketcher.Constraint("Horizontal", 47, 2, 50, 2),
    Sketcher.Constraint("Equal", 3, 5),
    Sketcher.Constraint("Equal", 7, 9),
    Sketcher.Constraint("Equal", 11, 13),
    Sketcher.Constraint("Equal", 15, 17),
    Sketcher.Constraint("Equal", 19, 21),
    Sketcher.Constraint("Equal", 23, 25),
    Sketcher.Constraint("Equal", 27, 29),
    Sketcher.Constraint("Equal", 31, 33),
    Sketcher.Constraint("Equal", 35, 37),
    Sketcher.Constraint("Equal", 39, 41),
    Sketcher.Constraint("Equal", 43, 45),
    Sketcher.Constraint("Equal", 47, 49),
    Sketcher.Constraint("DistanceX", 1, 1, 1, 2, Q("1 mm")),
    Sketcher.Constraint("DistanceY", 0, 1, 0, 2, Q("50 mm")),
    Sketcher.Constraint("DistanceX", 24, 2, -1, 1, Q("13 mm")),
    Sketcher.Constraint("DistanceX", 40, 2, -1, 1, Q("26 mm")),
    Sketcher.Constraint("DistanceX", -1, 1, 0, 2, Q("6.5 mm")),
    Sketcher.Constraint("DistanceX", 32, 2, -1, 1, Q("19.5 mm")),
    Sketcher.Constraint("DistanceX", 48, 2, -1, 1, Q("32.5 mm")),
    Sketcher.Constraint("DistanceX", 12, 2, 4, 2, Q("6.5 mm")),
    Sketcher.Constraint("DistanceX", 20, 2, 12, 2, Q("6.5 mm")),
    Sketcher.Constraint("DistanceX", 28, 2, 20, 2, Q("6.5 mm")),
    Sketcher.Constraint("DistanceX", 36, 2, 28, 2, Q("6.5 mm")),
    Sketcher.Constraint("DistanceX", 44, 2, 36, 2, Q("6.5 mm")),
])
pad9 = body3.newObject("PartDesign::Pad", "Pad008")
pad9.Profile = sketch9
pad9.Length = 8.5
pad9.Reversed = True
body4 = doc.addObject("PartDesign::Body", "Body003")
body4.AllowCompound = True

# Sketch on XY plane
sketch10 = body4.newObject("Sketcher::SketchObject", "Sketch009")
sketch10.AttachmentSupport = (doc.getObject("XY_Plane003"), [""])
sketch10.MapMode = "FlatFace"
sketch10.AttachmentOffset = App.Placement(V(0, 0, -1.5), App.Rotation())
sketch10.addGeometry([
    Part.ArcOfCircle(Part.Circle(V(-14.5, -17, 0), V(0, 0, 1), 1.5), math.radians(-42), math.radians(0)),  # 0
    Part.ArcOfCircle(Part.Circle(V(-14.5, -17, 0), V(0, 0, 1), 1.5), math.radians(-138), math.radians(-42)),  # 1
    Part.ArcOfCircle(Part.Circle(V(-14.5, -17, 0), V(0, 0, 1), 1.5), math.radians(0), math.radians(222)),  # 2
    Part.ArcOfCircle(Part.Circle(V(-14.5, 17, 0), V(0, 0, 1), 1.5), math.radians(0), math.radians(42)),  # 3
    Part.ArcOfCircle(Part.Circle(V(-14.5, 17, 0), V(0, 0, 1), 1.5), math.radians(138), math.radians(360)),  # 4
    Part.ArcOfCircle(Part.Circle(V(-14.5, 17, 0), V(0, 0, 1), 1.5), math.radians(42), math.radians(138)),  # 5
], False)
sketch10.addConstraint([
    Sketcher.Constraint("Tangent", 0, 1, 1, 2),
    Sketcher.Constraint("Tangent", 1, 1, 2, 2),
    Sketcher.Constraint("Tangent", 2, 1, 0, 2),
    Sketcher.Constraint("Tangent", 3, 1, 4, 2),
    Sketcher.Constraint("Tangent", 4, 1, 5, 2),
    Sketcher.Constraint("Tangent", 5, 1, 3, 2),
    Sketcher.Constraint("Equal", 2, 3),
    Sketcher.Constraint("Symmetric", 0, 3, 3, 3, -1),
    Sketcher.Constraint("Horizontal", 0, 1, 1, 1),
    Sketcher.Constraint("Horizontal", 1, 3, 2, 1),
    Sketcher.Constraint("Horizontal", 5, 3, 3, 1),
    Sketcher.Constraint("Horizontal", 4, 1, 5, 1),
    Sketcher.Constraint("Vertical", 1, 1, 4, 1),
    Sketcher.Constraint("Radius", 0, Q("1.5 mm")),
    Sketcher.Constraint("DistanceY", 0, 3, -1, 1, Q("17 mm")),
    Sketcher.Constraint("DistanceY", 0, 1, -1, 1, Q("18 mm")),
    Sketcher.Constraint("DistanceX", 2, 1, -1, 1, Q("13 mm")),
])
pad10 = body4.newObject("PartDesign::Pad", "Pad009")
pad10.Profile = sketch10
pad10.Length = 100
pad10.Midplane = True
doc.recompute()

body5 = doc.addObject("PartDesign::Body", "Body004")
body5.BaseFeature = body4
boolean = body.newObject("PartDesign::Boolean", "Boolean")
boolean.Type = "Cut"
boolean.addObjects([body5])
doc.recompute()

boolean2 = body3.newObject("PartDesign::Boolean", "Boolean001")
boolean2.Type = "Cut"
boolean2.addObjects([body4])

doc.recompute()
